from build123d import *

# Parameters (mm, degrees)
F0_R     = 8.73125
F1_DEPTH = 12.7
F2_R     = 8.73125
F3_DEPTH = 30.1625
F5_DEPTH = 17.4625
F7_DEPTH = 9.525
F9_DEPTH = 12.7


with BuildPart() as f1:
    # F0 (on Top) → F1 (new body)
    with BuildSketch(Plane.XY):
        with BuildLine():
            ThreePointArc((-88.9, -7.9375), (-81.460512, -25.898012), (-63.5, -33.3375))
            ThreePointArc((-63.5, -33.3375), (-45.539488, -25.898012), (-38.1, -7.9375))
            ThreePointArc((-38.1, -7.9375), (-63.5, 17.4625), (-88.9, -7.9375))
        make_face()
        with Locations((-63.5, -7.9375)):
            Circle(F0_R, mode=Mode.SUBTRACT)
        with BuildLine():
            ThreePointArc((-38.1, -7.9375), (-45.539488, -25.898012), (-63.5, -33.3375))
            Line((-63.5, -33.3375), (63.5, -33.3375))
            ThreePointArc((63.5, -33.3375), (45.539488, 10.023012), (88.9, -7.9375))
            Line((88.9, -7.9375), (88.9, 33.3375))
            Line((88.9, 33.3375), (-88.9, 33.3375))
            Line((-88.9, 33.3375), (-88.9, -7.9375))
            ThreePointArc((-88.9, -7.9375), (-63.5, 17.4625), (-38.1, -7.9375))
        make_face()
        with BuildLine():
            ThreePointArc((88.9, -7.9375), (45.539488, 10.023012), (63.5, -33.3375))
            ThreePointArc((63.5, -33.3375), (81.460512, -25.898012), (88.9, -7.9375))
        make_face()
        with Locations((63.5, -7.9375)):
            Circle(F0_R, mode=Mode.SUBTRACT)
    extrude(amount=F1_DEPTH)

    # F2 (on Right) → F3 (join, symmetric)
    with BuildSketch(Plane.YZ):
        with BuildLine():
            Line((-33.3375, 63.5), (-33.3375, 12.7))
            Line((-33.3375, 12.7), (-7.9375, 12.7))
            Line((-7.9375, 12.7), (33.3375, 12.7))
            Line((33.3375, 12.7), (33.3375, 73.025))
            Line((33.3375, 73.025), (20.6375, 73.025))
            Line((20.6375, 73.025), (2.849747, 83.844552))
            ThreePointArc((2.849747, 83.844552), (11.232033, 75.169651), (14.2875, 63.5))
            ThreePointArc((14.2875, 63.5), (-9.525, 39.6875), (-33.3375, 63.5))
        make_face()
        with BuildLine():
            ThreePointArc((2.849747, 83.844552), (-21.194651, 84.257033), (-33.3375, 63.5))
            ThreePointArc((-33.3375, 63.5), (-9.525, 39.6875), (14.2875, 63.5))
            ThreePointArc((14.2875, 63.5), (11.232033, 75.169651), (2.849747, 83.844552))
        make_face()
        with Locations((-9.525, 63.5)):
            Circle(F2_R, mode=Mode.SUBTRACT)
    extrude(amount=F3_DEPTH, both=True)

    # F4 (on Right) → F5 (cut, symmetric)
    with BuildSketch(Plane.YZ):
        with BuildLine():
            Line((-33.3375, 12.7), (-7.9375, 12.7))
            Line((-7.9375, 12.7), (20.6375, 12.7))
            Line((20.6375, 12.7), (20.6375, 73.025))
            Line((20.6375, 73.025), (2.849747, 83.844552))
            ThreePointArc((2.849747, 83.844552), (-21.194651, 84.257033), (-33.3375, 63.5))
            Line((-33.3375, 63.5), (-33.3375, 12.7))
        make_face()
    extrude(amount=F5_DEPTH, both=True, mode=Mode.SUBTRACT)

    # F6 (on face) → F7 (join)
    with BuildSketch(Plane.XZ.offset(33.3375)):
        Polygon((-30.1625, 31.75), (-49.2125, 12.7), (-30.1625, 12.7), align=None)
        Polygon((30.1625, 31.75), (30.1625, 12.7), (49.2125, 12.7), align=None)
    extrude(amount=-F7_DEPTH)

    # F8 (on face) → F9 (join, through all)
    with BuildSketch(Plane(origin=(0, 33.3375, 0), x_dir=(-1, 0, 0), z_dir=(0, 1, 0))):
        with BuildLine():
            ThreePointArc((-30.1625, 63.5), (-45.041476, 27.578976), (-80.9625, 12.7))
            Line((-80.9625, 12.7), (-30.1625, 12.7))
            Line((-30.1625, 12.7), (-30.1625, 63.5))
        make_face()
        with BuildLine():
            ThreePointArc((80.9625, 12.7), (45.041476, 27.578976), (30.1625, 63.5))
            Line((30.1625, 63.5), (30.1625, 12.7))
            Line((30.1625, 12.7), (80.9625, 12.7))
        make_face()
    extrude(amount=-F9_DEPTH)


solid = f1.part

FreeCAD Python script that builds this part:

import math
import FreeCAD as App
import Part
import Sketcher

V = App.Vector
Q = App.Units.Quantity

doc = App.newDocument("Part")
body = doc.addObject("PartDesign::Body", "Body")

# Sketch on XY plane
sketch1 = body.newObject("Sketcher::SketchObject", "Sketch")
sketch1.AttachmentSupport = (doc.getObject("XY_Plane"), [""])
sketch1.MapMode = "FlatFace"
sketch1.addGeometry(Part.ArcOfCircle(Part.Circle(V(-63, -8, 0), V(0, 0, 1), 25), math.radians(-180), math.radians(-90)), False)
sketch1.addGeometry(Part.LineSegment(V(-64, -33, 0), V(64, -33, 0)), False)
sketch1.addGeometry(Part.ArcOfCircle(Part.Circle(V(63, -8, 0), V(0, 0, 1), 25), math.radians(-90), math.radians(0)), False)
sketch1.addGeometry(Part.LineSegment(V(89, -8, 0), V(89, 33, 0)), False)
sketch1.addGeometry(Part.LineSegment(V(89, 33, 0), V(-89, 33, 0)), False)
sketch1.addGeometry(Part.LineSegment(V(-89, 33, 0), V(-89, -8, 0)), False)
sketch1.addGeometry(Part.Circle(V(-64, -8, 0), V(0, 0, 1), 9), False)
sketch1.addGeometry(Part.Circle(V(64, -8, 0), V(0, 0, 1), 9), False)
sketch1.addConstraint(Sketcher.Constraint("Tangent", 0, 2, 1, 1))
sketch1.addConstraint(Sketcher.Constraint("Tangent", 1, 2, 2, 1))
sketch1.addConstraint(Sketcher.Constraint("Tangent", 2, 2, 3, 1))
sketch1.addConstraint(Sketcher.Constraint("Coincident", 3, 2, 4, 1))
sketch1.addConstraint(Sketcher.Constraint("Coincident", 4, 2, 5, 1))
sketch1.addConstraint(Sketcher.Constraint("Tangent", 5, 2, 0, 1))
sketch1.addConstraint(Sketcher.Constraint("Horizontal", 1))
sketch1.addConstraint(Sketcher.Constraint("Vertical", 3))
sketch1.addConstraint(Sketcher.Constraint("Horizontal", 4))
sketch1.addConstraint(Sketcher.Constraint("Vertical", 5))
sketch1.addConstraint(Sketcher.Constraint("Coincident", 6, 3, 0, 3))
sketch1.addConstraint(Sketcher.Constraint("Coincident", 7, 3, 2, 3))
sketch1.addConstraint(Sketcher.Constraint("Equal", 0, 2))
sketch1.addConstraint(Sketcher.Constraint("Equal", 6, 7))
sketch1.addConstraint(Sketcher.Constraint("Radius", 0, Q("1 in")))
sketch1.addConstraint(Sketcher.Constraint("DistanceX", 1, 1, 1, 2, Q("5 in")))
sketch1.addConstraint(Sketcher.Constraint("Diameter", 6, Q("0.6875 in")))
sketch1.addConstraint(Sketcher.Constraint("DistanceX", 0, 3, -1, 1, Q("2.5 in")))
sketch1.addConstraint(Sketcher.Constraint("DistanceY", 3, 1, 3, 2, Q("1.625 in")))
sketch1.addConstraint(Sketcher.Constraint("DistanceY", 0, 3, -1, 1, Q("0.3125 in")))
pad1 = body.newObject("PartDesign::Pad", "Pad")
pad1.Profile = sketch1
pad1.Length = Q("0.5 in")

# Sketch on YZ plane
sketch2 = body.newObject("Sketcher::SketchObject", "Sketch001")
sketch2.AttachmentSupport = (doc.getObject("YZ_Plane"), [""])
sketch2.MapMode = "FlatFace"
sketch2.addGeometry(Part.LineSegment(V(-33, 64, 0), V(-33, 13, 0)), False)
sketch2.addGeometry(Part.LineSegment(V(-33, 13, 0), V(33, 13, 0)), False)
sketch2.addGeometry(Part.LineSegment(V(33, 13, 0), V(33, 73, 0)), False)
sketch2.addGeometry(Part.LineSegment(V(33, 73, 0), V(21, 73, 0)), False)
sketch2.addGeometry(Part.LineSegment(V(21, 73, 0), V(3, 84, 0)), False)
sketch2.addGeometry(Part.ArcOfCircle(Part.Circle(V(-10, 64, 0), V(0, 0, 1), 24), math.radians(59), math.radians(180)), False)
sketch2.addGeometry(Part.Circle(V(-10, 64, 0), V(0, 0, 1), 9), False)
sketch2.addConstraint(Sketcher.Constraint("Coincident", 0, 2, 1, 1))
sketch2.addConstraint(Sketcher.Constraint("Coincident", 1, 2, 2, 1))
sketch2.addConstraint(Sketcher.Constraint("Coincident", 2, 2, 3, 1))
sketch2.addConstraint(Sketcher.Constraint("Coincident", 3, 2, 4, 1))
sketch2.addConstraint(Sketcher.Constraint("Tangent", 4, 2, 5, 1))
sketch2.addConstraint(Sketcher.Constraint("Tangent", 5, 2, 0, 1))
sketch2.addConstraint(Sketcher.Constraint("Vertical", 0))
sketch2.addConstraint(Sketcher.Constraint("Horizontal", 1))
sketch2.addConstraint(Sketcher.Constraint("Vertical", 2))
sketch2.addConstraint(Sketcher.Constraint("Horizontal", 3))
sketch2.addConstraint(Sketcher.Constraint("Coincident", 6, 3, 5, 3))
sketch2.addConstraint(Sketcher.Constraint("DistanceY", 0, 2, 0, 1, Q("2 in")))
sketch2.addConstraint(Sketcher.Constraint("Diameter", 6, Q("0.6875 in")))
sketch2.addConstraint(Sketcher.Constraint("DistanceX", 3, 2, 3, 1, Q("0.5 in")))
sketch2.addConstraint(Sketcher.Constraint("Radius", 5, Q("0.9375 in")))
sketch2.addConstraint(Sketcher.Constraint("DistanceY", -1, 1, 5, 3, Q("2.5 in")))
sketch2.addConstraint(Sketcher.Constraint("DistanceX", 1, 1, 1, 2, Q("2.625 in")))
sketch2.addConstraint(Sketcher.Constraint("DistanceY", 2, 1, 2, 2, Q("2.375 in")))
sketch2.addConstraint(Sketcher.Constraint("DistanceX", 5, 3, -1, 1, Q("0.375 in")))
pad2 = body.newObject("PartDesign::Pad", "Pad001")
pad2.Profile = sketch2
pad2.Length = Q("2.375 in")
pad2.Midplane = True

# Sketch on YZ plane
sketch3 = body.newObject("Sketcher::SketchObject", "Sketch002")
sketch3.AttachmentSupport = (doc.getObject("YZ_Plane"), [""])
sketch3.MapMode = "FlatFace"
sketch3.addGeometry(Part.LineSegment(V(-33, 13, 0), V(21, 13, 0)), False)
sketch3.addGeometry(Part.LineSegment(V(21, 13, 0), V(21, 73, 0)), False)
sketch3.addGeometry(Part.LineSegment(V(21, 73, 0), V(3, 84, 0)), False)
sketch3.addGeometry(Part.ArcOfCircle(Part.Circle(V(-10, 64, 0), V(0, 0, 1), 24), math.radians(59), math.radians(180)), False)
sketch3.addGeometry(Part.LineSegment(V(-33, 64, 0), V(-33, 13, 0)), False)
sketch3.addConstraint(Sketcher.Constraint("Coincident", 0, 2, 1, 1))
sketch3.addConstraint(Sketcher.Constraint("Coincident", 1, 2, 2, 1))
sketch3.addConstraint(Sketcher.Constraint("Tangent", 2, 2, 3, 1))
sketch3.addConstraint(Sketcher.Constraint("Tangent", 3, 2, 4, 1))
sketch3.addConstraint(Sketcher.Constraint("Coincident", 4, 2, 0, 1))
sketch3.addConstraint(Sketcher.Constraint("Horizontal", 0))
sketch3.addConstraint(Sketcher.Constraint("Vertical", 1))
sketch3.addConstraint(Sketcher.Constraint("Vertical", 4))
sketch3.addConstraint(Sketcher.Constraint("DistanceY", 4, 2, 4, 1, Q("2 in")))
sketch3.addConstraint(Sketcher.Constraint("Radius", 3, Q("0.9375 in")))
sketch3.addConstraint(Sketcher.Constraint("DistanceY", -1, 1, 3, 3, Q("2.5 in")))
sketch3.addConstraint(Sketcher.Constraint("DistanceX", 0, 1, 0, 2, Q("2.125 in")))
sketch3.addConstraint(Sketcher.Constraint("DistanceY", 1, 1, 1, 2, Q("2.375 in")))
sketch3.addConstraint(Sketcher.Constraint("DistanceX", 3, 3, -1, 1, Q("0.375 in")))
pocket1 = body.newObject("PartDesign::Pocket", "Pocket")
pocket1.Profile = sketch3
pocket1.Length = Q("1.375 in")
pocket1.Midplane = True

# Sketch on XZ plane
sketch4 = body.newObject("Sketcher::SketchObject", "Sketch003")
sketch4.AttachmentSupport = (doc.getObject("XZ_Plane"), [""])
sketch4.MapMode = "FlatFace"
sketch4.AttachmentOffset = App.Placement(V(0, 0, 1.3125 * 25.4), App.Rotation())
sketch4.addGeometry(Part.LineSegment(V(-30, 32, 0), V(-49, 13, 0)), False)
sketch4.addGeometry(Part.LineSegment(V(-49, 13, 0), V(-30, 13, 0)), False)
sketch4.addGeometry(Part.LineSegment(V(-30, 13, 0), V(-30, 32, 0)), False)
sketch4.addGeometry(Part.LineSegment(V(30, 32, 0), V(30, 13, 0)), False)
sketch4.addGeometry(Part.LineSegment(V(30, 13, 0), V(49, 13, 0)), False)
sketch4.addGeometry(Part.LineSegment(V(49, 13, 0), V(30, 32, 0)), False)
sketch4.addConstraint(Sketcher.Constraint("Coincident", 0, 2, 1, 1))
sketch4.addConstraint(Sketcher.Constraint("Coincident", 1, 2, 2, 1))
sketch4.addConstraint(Sketcher.Constraint("Coincident", 2, 2, 0, 1))
sketch4.addConstraint(Sketcher.Constraint("Coincident", 3, 2, 4, 1))
sketch4.addConstraint(Sketcher.Constraint("Coincident", 4, 2, 5, 1))
sketch4.addConstraint(Sketcher.Constraint("Coincident", 5, 2, 3, 1))
sketch4.addConstraint(Sketcher.Constraint("Horizontal", 1))
sketch4.addConstraint(Sketcher.Constraint("Vertical", 2))
sketch4.addConstraint(Sketcher.Constraint("Vertical", 3))
sketch4.addConstraint(Sketcher.Constraint("Horizontal", 4))
sketch4.addConstraint(Sketcher.Constraint("Symmetric", 1, 2, 3, 2, -2))
sketch4.addConstraint(Sketcher.Constraint("Perpendicular", 0, 5))
sketch4.addConstraint(Sketcher.Constraint("Horizontal", 2, 2, 5, 2))
sketch4.addConstraint(Sketcher.Constraint("Equal", 1, 4))
sketch4.addConstraint(Sketcher.Constraint("DistanceX", 1, 1, 1, 2, Q("0.75 in")))
sketch4.addConstraint(Sketcher.Constraint("DistanceY", -1, 1, 0, 2, Q("0.5 in")))
sketch4.addConstraint(Sketcher.Constraint("DistanceX", 0, 2, -1, 1, Q("1.9375 in")))
pad3 = body.newObject("PartDesign::Pad", "Pad002")
pad3.Profile = sketch4
pad3.Length = Q("0.375 in")
pad3.Reversed = True

# Sketch on XZ plane
sketch5 = body.newObject("Sketcher::SketchObject", "Sketch004")
sketch5.AttachmentSupport = (doc.getObject("XZ_Plane"), [""])
sketch5.MapMode = "FlatFace"
sketch5.AttachmentOffset = App.Placement(V(0, 0, -1.3125 * 25.4), App.Rotation())
sketch5.addGeometry(Part.ArcOfCircle(Part.Circle(V(81, 64, 0), V(0, 0, 1), 51), math.radians(-180), math.radians(-90)), False)
sketch5.addGeometry(Part.LineSegment(V(81, 13, 0), V(30, 13, 0)), False)
sketch5.addGeometry(Part.LineSegment(V(30, 13, 0), V(30, 64, 0)), False)
sketch5.addGeometry(Part.ArcOfCircle(Part.Circle(V(-81, 64, 0), V(0, 0, 1), 51), math.radians(-90), math.radians(0)), False)
sketch5.addGeometry(Part.LineSegment(V(-30, 64, 0), V(-30, 13, 0)), False)
sketch5.addGeometry(Part.LineSegment(V(-30, 13, 0), V(-81, 13, 0)), False)
sketch5.addConstraint(Sketcher.Constraint("Tangent", 0, 2, 1, 1))
sketch5.addConstraint(Sketcher.Constraint("Coincident", 1, 2, 2, 1))
sketch5.addConstraint(Sketcher.Constraint("Tangent", 2, 2, 0, 1))
sketch5.addConstraint(Sketcher.Constraint("Tangent", 3, 2, 4, 1))
sketch5.addConstraint(Sketcher.Constraint("Coincident", 4, 2, 5, 1))
sketch5.addConstraint(Sketcher.Constraint("Tangent", 5, 2, 3, 1))
sketch5.addConstraint(Sketcher.Constraint("Horizontal", 1))
sketch5.addConstraint(Sketcher.Constraint("Vertical", 2))
sketch5.addConstraint(Sketcher.Constraint("Vertical", 4))
sketch5.addConstraint(Sketcher.Constraint("Horizontal", 5))
sketch5.addConstraint(Sketcher.Constraint("Equal", 0, 3))
sketch5.addConstraint(Sketcher.Constraint("Symmetric", 0, 3, 3, 3, -2))
sketch5.addConstraint(Sketcher.Constraint("Radius", 0, Q("2.0000001 in")))
sketch5.addConstraint(Sketcher.Constraint("DistanceY", -1, 1, 0, 3, Q("2.5000001 in")))
sketch5.addConstraint(Sketcher.Constraint("DistanceX", -1, 1, 0, 3, Q("3.1875001 in")))
pad4 = body.newObject("PartDesign::Pad", "Pad003")
pad4.Profile = sketch5
pad4.Type = "UpToLast"

doc.recompute()
